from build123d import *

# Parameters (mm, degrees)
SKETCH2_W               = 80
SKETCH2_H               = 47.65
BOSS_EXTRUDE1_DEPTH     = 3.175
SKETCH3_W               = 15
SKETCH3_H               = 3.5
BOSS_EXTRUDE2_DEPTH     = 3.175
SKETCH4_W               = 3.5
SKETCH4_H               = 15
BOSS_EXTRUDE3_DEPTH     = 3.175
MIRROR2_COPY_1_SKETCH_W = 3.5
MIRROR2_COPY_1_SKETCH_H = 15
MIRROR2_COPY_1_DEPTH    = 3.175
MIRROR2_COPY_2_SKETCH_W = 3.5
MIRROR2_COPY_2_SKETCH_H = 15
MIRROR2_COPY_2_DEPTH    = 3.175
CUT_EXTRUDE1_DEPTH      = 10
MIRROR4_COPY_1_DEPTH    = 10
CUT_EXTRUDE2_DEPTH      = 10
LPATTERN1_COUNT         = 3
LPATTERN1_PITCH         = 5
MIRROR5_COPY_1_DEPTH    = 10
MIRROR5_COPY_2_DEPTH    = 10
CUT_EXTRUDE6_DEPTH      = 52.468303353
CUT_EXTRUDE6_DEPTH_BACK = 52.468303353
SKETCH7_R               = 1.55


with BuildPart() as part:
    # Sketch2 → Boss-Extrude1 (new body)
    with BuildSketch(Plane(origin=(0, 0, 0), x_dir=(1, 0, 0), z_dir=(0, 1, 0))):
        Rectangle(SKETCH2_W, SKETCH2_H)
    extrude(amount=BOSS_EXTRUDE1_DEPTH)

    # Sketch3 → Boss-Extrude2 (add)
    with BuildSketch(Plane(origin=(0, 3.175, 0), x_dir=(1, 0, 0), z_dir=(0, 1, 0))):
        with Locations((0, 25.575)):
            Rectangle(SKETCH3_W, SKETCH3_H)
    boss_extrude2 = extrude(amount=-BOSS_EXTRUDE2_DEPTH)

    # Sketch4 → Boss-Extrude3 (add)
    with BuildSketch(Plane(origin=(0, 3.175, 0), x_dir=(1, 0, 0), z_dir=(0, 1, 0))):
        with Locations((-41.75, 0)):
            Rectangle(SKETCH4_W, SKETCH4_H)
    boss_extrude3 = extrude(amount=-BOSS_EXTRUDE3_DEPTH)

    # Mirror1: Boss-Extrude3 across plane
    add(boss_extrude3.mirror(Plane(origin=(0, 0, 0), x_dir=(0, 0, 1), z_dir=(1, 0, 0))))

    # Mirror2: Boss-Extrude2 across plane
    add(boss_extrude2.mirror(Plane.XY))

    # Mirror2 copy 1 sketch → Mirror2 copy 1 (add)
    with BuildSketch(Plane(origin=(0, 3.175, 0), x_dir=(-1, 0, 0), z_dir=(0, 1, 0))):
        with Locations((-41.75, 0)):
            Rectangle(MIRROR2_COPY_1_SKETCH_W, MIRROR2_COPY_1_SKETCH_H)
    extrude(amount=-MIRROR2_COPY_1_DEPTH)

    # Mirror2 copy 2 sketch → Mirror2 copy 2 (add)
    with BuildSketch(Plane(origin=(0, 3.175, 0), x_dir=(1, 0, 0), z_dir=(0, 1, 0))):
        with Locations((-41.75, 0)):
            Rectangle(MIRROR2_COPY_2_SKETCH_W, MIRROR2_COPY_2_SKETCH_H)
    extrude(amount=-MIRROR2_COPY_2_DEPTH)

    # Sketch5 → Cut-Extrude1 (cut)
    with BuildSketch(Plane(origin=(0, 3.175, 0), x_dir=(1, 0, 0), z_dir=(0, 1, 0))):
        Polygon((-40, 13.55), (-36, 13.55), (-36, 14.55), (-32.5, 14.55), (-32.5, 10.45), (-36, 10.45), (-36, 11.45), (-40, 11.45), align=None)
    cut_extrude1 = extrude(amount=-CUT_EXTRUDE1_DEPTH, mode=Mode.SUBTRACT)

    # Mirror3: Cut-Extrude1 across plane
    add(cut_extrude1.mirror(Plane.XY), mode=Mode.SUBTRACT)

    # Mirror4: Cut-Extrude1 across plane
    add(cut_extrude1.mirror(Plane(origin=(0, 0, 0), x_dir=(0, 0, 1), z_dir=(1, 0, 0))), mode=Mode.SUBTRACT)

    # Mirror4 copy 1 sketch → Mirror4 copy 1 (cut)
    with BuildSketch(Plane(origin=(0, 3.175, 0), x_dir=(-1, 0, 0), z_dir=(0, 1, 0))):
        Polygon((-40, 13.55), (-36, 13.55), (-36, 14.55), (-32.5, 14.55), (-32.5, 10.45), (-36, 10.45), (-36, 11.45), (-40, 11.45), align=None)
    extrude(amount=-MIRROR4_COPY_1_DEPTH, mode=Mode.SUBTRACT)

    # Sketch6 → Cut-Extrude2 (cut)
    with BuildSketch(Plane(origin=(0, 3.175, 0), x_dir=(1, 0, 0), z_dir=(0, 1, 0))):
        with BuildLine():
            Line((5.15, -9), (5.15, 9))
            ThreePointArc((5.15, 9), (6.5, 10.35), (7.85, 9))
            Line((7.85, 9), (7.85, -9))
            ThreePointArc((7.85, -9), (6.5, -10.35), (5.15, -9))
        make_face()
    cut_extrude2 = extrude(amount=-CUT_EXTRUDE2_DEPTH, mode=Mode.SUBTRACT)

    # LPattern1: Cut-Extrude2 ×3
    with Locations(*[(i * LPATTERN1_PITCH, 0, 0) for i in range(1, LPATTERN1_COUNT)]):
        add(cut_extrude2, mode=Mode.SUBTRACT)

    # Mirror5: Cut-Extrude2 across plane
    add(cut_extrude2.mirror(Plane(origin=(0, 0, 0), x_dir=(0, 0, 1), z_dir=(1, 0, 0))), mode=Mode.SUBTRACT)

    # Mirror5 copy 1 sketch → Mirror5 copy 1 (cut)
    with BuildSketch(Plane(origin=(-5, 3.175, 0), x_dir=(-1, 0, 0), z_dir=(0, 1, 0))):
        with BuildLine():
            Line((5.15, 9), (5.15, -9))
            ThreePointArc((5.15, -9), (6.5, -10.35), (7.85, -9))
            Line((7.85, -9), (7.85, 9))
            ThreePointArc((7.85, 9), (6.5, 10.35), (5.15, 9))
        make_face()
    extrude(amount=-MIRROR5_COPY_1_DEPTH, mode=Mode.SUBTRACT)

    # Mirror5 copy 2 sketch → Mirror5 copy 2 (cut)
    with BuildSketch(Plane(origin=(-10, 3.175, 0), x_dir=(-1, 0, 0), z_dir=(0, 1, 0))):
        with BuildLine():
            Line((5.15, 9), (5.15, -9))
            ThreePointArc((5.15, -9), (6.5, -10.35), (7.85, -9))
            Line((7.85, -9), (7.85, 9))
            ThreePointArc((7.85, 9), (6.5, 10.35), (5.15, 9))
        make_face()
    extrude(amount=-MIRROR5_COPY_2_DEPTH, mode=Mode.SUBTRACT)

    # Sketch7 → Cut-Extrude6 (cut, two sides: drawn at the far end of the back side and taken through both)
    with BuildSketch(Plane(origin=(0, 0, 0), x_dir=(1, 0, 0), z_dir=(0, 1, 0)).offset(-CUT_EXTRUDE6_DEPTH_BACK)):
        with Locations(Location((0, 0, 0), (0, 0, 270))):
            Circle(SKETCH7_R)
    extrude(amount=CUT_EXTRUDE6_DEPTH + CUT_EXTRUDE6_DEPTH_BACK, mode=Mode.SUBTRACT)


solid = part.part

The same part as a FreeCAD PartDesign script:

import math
import FreeCAD as App
import Part
import Sketcher

V = App.Vector


def add_polygon(sketch, points):
    """Adds a closed chain of lines whose ends are joined by coincident constraints."""
    first, n = sketch.GeometryCount, len(points)
    for a, b in zip(points, points[1:] + points[:1]):
        sketch.addGeometry(Part.LineSegment(App.Vector(*a, 0), App.Vector(*b, 0)), False)
    for i in range(n):
        sketch.addConstraint(Sketcher.Constraint("Coincident", first + i, 2, first + (i + 1) % n, 1))

doc = App.newDocument("Part")
body = doc.addObject("PartDesign::Body", "Body")

# Sketch on XZ plane
sketch1 = body.newObject("Sketcher::SketchObject", "Sketch")
sketch1.AttachmentSupport = (doc.getObject("XZ_Plane"), [""])
sketch1.MapMode = "FlatFace"
add_polygon(sketch1, [(-40, -23.825), (-40, 23.825), (40, 23.825), (40, -23.825)])  # lines 0-3
sketch1.addConstraint([
    Sketcher.Constraint("Vertical", 0),
    Sketcher.Constraint("Horizontal", 1),
    Sketcher.Constraint("Vertical", 2),
    Sketcher.Constraint("Horizontal", 3),
    Sketcher.Constraint("Symmetric", 0, 2, 2, 2, -1, 1),
    Sketcher.Constraint("DistanceX", 1, 1, 1, 2, 80.0),
    Sketcher.Constraint("DistanceY", 0, 1, 0, 2, 47.65),
])
pad1 = body.newObject("PartDesign::Pad", "Pad")
pad1.Profile = sketch1
pad1.Length = 3.175
pad1.Reversed = True

# Sketch on XZ plane
sketch2 = body.newObject("Sketcher::SketchObject", "Sketch001")
sketch2.AttachmentSupport = (doc.getObject("XZ_Plane"), [""])
sketch2.MapMode = "FlatFace"
sketch2.AttachmentOffset = App.Placement(V(0, 0, -3.175), App.Rotation())
add_polygon(sketch2, [(-7.5, -27.325), (-7.5, -23.825), (7.5, -23.825), (7.5, -27.325)])  # lines 0-3
sketch2.addConstraint([
    Sketcher.Constraint("Vertical", 0),
    Sketcher.Constraint("Horizontal", 1),
    Sketcher.Constraint("Vertical", 2),
    Sketcher.Constraint("Horizontal", 3),
    Sketcher.Constraint("DistanceX", 1, 1, 1, 2, 15.0),
    Sketcher.Constraint("DistanceY", 0, 1, 0, 2, 3.5),
    Sketcher.Constraint("DistanceX", 0, 2, -1, 1, 7.5),
    Sketcher.Constraint("DistanceY", 0, 2, -1, 1, 23.825),
])
pad2 = body.newObject("PartDesign::Pad", "Pad001")
pad2.Profile = sketch2
pad2.Length = 3.175

# Sketch on XZ plane
sketch3 = body.newObject("Sketcher::SketchObject", "Sketch002")
sketch3.AttachmentSupport = (doc.getObject("XZ_Plane"), [""])
sketch3.MapMode = "FlatFace"
sketch3.AttachmentOffset = App.Placement(V(0, 0, -3.175), App.Rotation())
add_polygon(sketch3, [(-43.5, -7.5), (-43.5, 7.5), (-40, 7.5), (-40, -7.5)])  # lines 0-3
sketch3.addConstraint([
    Sketcher.Constraint("Vertical", 0),
    Sketcher.Constraint("Horizontal", 1),
    Sketcher.Constraint("Vertical", 2),
    Sketcher.Constraint("Horizontal", 3),
    Sketcher.Constraint("DistanceY", 0, 1, 0, 2, 15.0),
    Sketcher.Constraint("DistanceX", 1, 1, 1, 2, 3.5),
    Sketcher.Constraint("DistanceX", 1, 2, -1, 1, 40.0),
    Sketcher.Constraint("DistanceY", -1, 1, 0, 2, 7.5),
])
pad3 = body.newObject("PartDesign::Pad", "Pad002")
pad3.Profile = sketch3
pad3.Length = 3.175
doc.recompute()

mirrored = body.newObject("PartDesign::Mirrored", "Mirrored")
mirrored.Originals = [pad3]
mirrored.MirrorPlane = (doc.getObject("YZ_Plane"), [""])
body.Tip = mirrored
doc.recompute()

mirrored2 = body.newObject("PartDesign::Mirrored", "Mirrored001")
mirrored2.Originals = [pad2]
mirrored2.MirrorPlane = (doc.getObject("XY_Plane"), [""])
body.Tip = mirrored2

# Sketch on XZ plane
sketch4 = body.newObject("Sketcher::SketchObject", "Sketch003")
sketch4.AttachmentSupport = (doc.getObject("XZ_Plane"), [""])
sketch4.MapMode = "FlatFace"
sketch4.AttachmentOffset = App.Placement(V(0, 0, -3.175), App.Rotation())
add_polygon(sketch4, [(43.5, 7.5), (43.5, -7.5), (40, -7.5), (40, 7.5)])  # lines 0-3
sketch4.addConstraint([
    Sketcher.Constraint("Vertical", 0),
    Sketcher.Constraint("Horizontal", 1),
    Sketcher.Constraint("Vertical", 2),
    Sketcher.Constraint("Horizontal", 3),
    Sketcher.Constraint("DistanceY", 0, 2, 0, 1, 15.0),
    Sketcher.Constraint("DistanceX", 1, 2, 1, 1, 3.5),
    Sketcher.Constraint("DistanceX", -1, 1, 1, 2, 40.0),
    Sketcher.Constraint("DistanceY", 0, 2, -1, 1, 7.5),
])
pad4 = body.newObject("PartDesign::Pad", "Pad003")
pad4.Profile = sketch4
pad4.Length = 3.175

# Sketch on XZ plane
sketch5 = body.newObject("Sketcher::SketchObject", "Sketch004")
sketch5.AttachmentSupport = (doc.getObject("XZ_Plane"), [""])
sketch5.MapMode = "FlatFace"
sketch5.AttachmentOffset = App.Placement(V(0, 0, -3.175), App.Rotation())
add_polygon(sketch5, [(-43.5, -7.5), (-43.5, 7.5), (-40, 7.5), (-40, -7.5)])  # lines 0-3
sketch5.addConstraint([
    Sketcher.Constraint("Vertical", 0),
    Sketcher.Constraint("Horizontal", 1),
    Sketcher.Constraint("Vertical", 2),
    Sketcher.Constraint("Horizontal", 3),
    Sketcher.Constraint("DistanceY", 0, 1, 0, 2, 15.0),
    Sketcher.Constraint("DistanceX", 1, 1, 1, 2, 3.5),
    Sketcher.Constraint("DistanceX", 1, 2, -1, 1, 40.0),
    Sketcher.Constraint("DistanceY", -1, 1, 0, 2, 7.5),
])
pad5 = body.newObject("PartDesign::Pad", "Pad004")
pad5.Profile = sketch5
pad5.Length = 3.175

# Sketch on XZ plane
sketch6 = body.newObject("Sketcher::SketchObject", "Sketch005")
sketch6.AttachmentSupport = (doc.getObject("XZ_Plane"), [""])
sketch6.MapMode = "FlatFace"
sketch6.AttachmentOffset = App.Placement(V(0, 0, -3.175), App.Rotation())
add_polygon(sketch6, [(-36, -13.55), (-40, -13.55), (-40, -11.45), (-36, -11.45), (-36, -10.45), (-32.5, -10.45), (-32.5, -14.55), (-36, -14.55)])  # lines 0-7
sketch6.addConstraint([
    Sketcher.Constraint("Horizontal", 0),
    Sketcher.Constraint("Vertical", 1),
    Sketcher.Constraint("Horizontal", 2),
    Sketcher.Constraint("Vertical", 3),
    Sketcher.Constraint("Horizontal", 4),
    Sketcher.Constraint("Vertical", 5),
    Sketcher.Constraint("Horizontal", 6),
    Sketcher.Constraint("Vertical", 7),
    Sketcher.Constraint("Vertical", 3, 2, 6, 2),
    Sketcher.Constraint("Equal", 3, 7),
    Sketcher.Constraint("DistanceX", 0, 2, 0, 1, 4.0),
    Sketcher.Constraint("DistanceY", 3, 1, 3, 2, 1.0),
    Sketcher.Constraint("DistanceX", 4, 1, 4, 2, 3.5),
    Sketcher.Constraint("DistanceY", 1, 1, 1, 2, 2.1),
    Sketcher.Constraint("DistanceX", 0, 2, -1, 1, 40.0),
    Sketcher.Constraint("DistanceY", 0, 2, -1, 1, 13.55),
])
pocket1 = body.newObject("PartDesign::Pocket", "Pocket")
pocket1.Profile = sketch6
pocket1.Length = 10
pocket1.Reversed = True
doc.recompute()

mirrored3 = body.newObject("PartDesign::Mirrored", "Mirrored002")
mirrored3.Originals = [pocket1]
mirrored3.MirrorPlane = (doc.getObject("XY_Plane"), [""])
body.Tip = mirrored3
doc.recompute()

mirrored4 = body.newObject("PartDesign::Mirrored", "Mirrored003")
mirrored4.Originals = [pocket1]
mirrored4.MirrorPlane = (doc.getObject("YZ_Plane"), [""])
body.Tip = mirrored4

# Sketch on XZ plane
sketch7 = body.newObject("Sketcher::SketchObject", "Sketch006")
sketch7.AttachmentSupport = (doc.getObject("XZ_Plane"), [""])
sketch7.MapMode = "FlatFace"
sketch7.AttachmentOffset = App.Placement(V(0, 0, -3.175), App.Rotation())
add_polygon(sketch7, [(36, 13.55), (40, 13.55), (40, 11.45), (36, 11.45), (36, 10.45), (32.5, 10.45), (32.5, 14.55), (36, 14.55)])  # lines 0-7
sketch7.addConstraint([
    Sketcher.Constraint("Horizontal", 0),
    Sketcher.Constraint("Vertical", 1),
    Sketcher.Constraint("Horizontal", 2),
    Sketcher.Constraint("Vertical", 3),
    Sketcher.Constraint("Horizontal", 4),
    Sketcher.Constraint("Vertical", 5),
    Sketcher.Constraint("Horizontal", 6),
    Sketcher.Constraint("Vertical", 7),
    Sketcher.Constraint("Vertical", 3, 2, 6, 2),
    Sketcher.Constraint("Equal", 3, 7),
    Sketcher.Constraint("DistanceX", 0, 1, 0, 2, 4.0),
    Sketcher.Constraint("DistanceY", 3, 2, 3, 1, 1.0),
    Sketcher.Constraint("DistanceX", 4, 2, 4, 1, 3.5),
    Sketcher.Constraint("DistanceY", 1, 2, 1, 1, 2.1),
    Sketcher.Constraint("DistanceX", -1, 1, 0, 2, 40.0),
    Sketcher.Constraint("DistanceY", -1, 1, 0, 2, 13.55),
])
pocket2 = body.newObject("PartDesign::Pocket", "Pocket001")
pocket2.Profile = sketch7
pocket2.Length = 10
pocket2.Reversed = True

# Sketch on XZ plane
sketch8 = body.newObject("Sketcher::SketchObject", "Sketch007")
sketch8.AttachmentSupport = (doc.getObject("XZ_Plane"), [""])
sketch8.MapMode = "FlatFace"
sketch8.AttachmentOffset = App.Placement(V(0, 0, -3.175), App.Rotation())
sketch8.addGeometry([
    Part.LineSegment(V(5.15, -9, 0), V(5.15, 9, 0)),
    Part.ArcOfCircle(Part.Circle(V(6.5, 9, 0), V(0, 0, 1), 1.35), math.radians(0), math.radians(180)),
    Part.LineSegment(V(7.85, 9, 0), V(7.85, -9, 0)),
    Part.ArcOfCircle(Part.Circle(V(6.5, -9, 0), V(0, 0, 1), 1.35), math.radians(180), math.radians(360)),
], False)
sketch8.addConstraint([
    Sketcher.Constraint("Tangent", 0, 2, 1, 2),
    Sketcher.Constraint("Tangent", 1, 1, 2, 1),
    Sketcher.Constraint("Tangent", 2, 2, 3, 2),
    Sketcher.Constraint("Tangent", 3, 1, 0, 1),
    Sketcher.Constraint("Vertical", 0),
    Sketcher.Constraint("Vertical", 2),
    Sketcher.Constraint("DistanceY", 0, 1, 0, 2, 18.0),
    Sketcher.Constraint("Radius", 1, 1.35),
    Sketcher.Constraint("DistanceY", -1, 1, 1, 3, 9.0),
    Sketcher.Constraint("DistanceX", -1, 1, 1, 3, 6.5),
])
pocket3 = body.newObject("PartDesign::Pocket", "Pocket002")
pocket3.Profile = sketch8
pocket3.Length = 10
pocket3.Reversed = True
doc.recompute()

linearpattern = body.newObject("PartDesign::LinearPattern", "LinearPattern")
linearpattern.Originals = [pocket3]
linearpattern.Direction = (doc.getObject("X_Axis"), [""])
linearpattern.Mode = "offset"
linearpattern.Offset = 5
linearpattern.Occurrences = 3
body.Tip = linearpattern
doc.recompute()

mirrored5 = body.newObject("PartDesign::Mirrored", "Mirrored004")
mirrored5.Originals = [pocket3]
mirrored5.MirrorPlane = (doc.getObject("YZ_Plane"), [""])
body.Tip = mirrored5

# Sketch on XZ plane
sketch9 = body.newObject("Sketcher::SketchObject", "Sketch008")
sketch9.AttachmentSupport = (doc.getObject("XZ_Plane"), [""])
sketch9.MapMode = "FlatFace"
sketch9.AttachmentOffset = App.Placement(V(0, 0, -3.175), App.Rotation())
sketch9.addGeometry([
    Part.LineSegment(V(-10.15, 9, 0), V(-10.15, -9, 0)),
    Part.ArcOfCircle(Part.Circle(V(-11.5, -9, 0), V(0, 0, 1), 1.35), math.radians(180), math.radians(360)),
    Part.LineSegment(V(-12.85, -9, 0), V(-12.85, 9, 0)),
    Part.ArcOfCircle(Part.Circle(V(-11.5, 9, 0), V(0, 0, 1), 1.35), math.radians(0), math.radians(180)),
], False)
sketch9.addConstraint([
    Sketcher.Constraint("Tangent", 0, 2, 1, 2),
    Sketcher.Constraint("Tangent", 1, 1, 2, 1),
    Sketcher.Constraint("Tangent", 2, 2, 3, 2),
    Sketcher.Constraint("Tangent", 3, 1, 0, 1),
    Sketcher.Constraint("Vertical", 0),
    Sketcher.Constraint("Vertical", 2),
    Sketcher.Constraint("DistanceY", 0, 2, 0, 1, 18.0),
    Sketcher.Constraint("Radius", 1, 1.35),
    Sketcher.Constraint("DistanceY", 1, 3, -1, 1, 9.0),
    Sketcher.Constraint("DistanceX", 1, 3, -1, 1, 11.5),
])
pocket4 = body.newObject("PartDesign::Pocket", "Pocket003")
pocket4.Profile = sketch9
pocket4.Length = 10
pocket4.Reversed = True

# Sketch on XZ plane
sketch10 = body.newObject("Sketcher::SketchObject", "Sketch009")
sketch10.AttachmentSupport = (doc.getObject("XZ_Plane"), [""])
sketch10.MapMode = "FlatFace"
sketch10.AttachmentOffset = App.Placement(V(0, 0, -3.175), App.Rotation())
sketch10.addGeometry([
    Part.LineSegment(V(-15.15, 9, 0), V(-15.15, -9, 0)),
    Part.ArcOfCircle(Part.Circle(V(-16.5, -9, 0), V(0, 0, 1), 1.35), math.radians(180), math.radians(360)),
    Part.LineSegment(V(-17.85, -9, 0), V(-17.85, 9, 0)),
    Part.ArcOfCircle(Part.Circle(V(-16.5, 9, 0), V(0, 0, 1), 1.35), math.radians(0), math.radians(180)),
], False)
sketch10.addConstraint([
    Sketcher.Constraint("Tangent", 0, 2, 1, 2),
    Sketcher.Constraint("Tangent", 1, 1, 2, 1),
    Sketcher.Constraint("Tangent", 2, 2, 3, 2),
    Sketcher.Constraint("Tangent", 3, 1, 0, 1),
    Sketcher.Constraint("Vertical", 0),
    Sketcher.Constraint("Vertical", 2),
    Sketcher.Constraint("DistanceY", 0, 2, 0, 1, 18.0),
    Sketcher.Constraint("Radius", 1, 1.35),
    Sketcher.Constraint("DistanceY", 1, 3, -1, 1, 9.0),
    Sketcher.Constraint("DistanceX", 1, 3, -1, 1, 16.5),
])
pocket5 = body.newObject("PartDesign::Pocket", "Pocket004")
pocket5.Profile = sketch10
pocket5.Length = 10
pocket5.Reversed = True

# Sketch on XZ plane
sketch11 = body.newObject("Sketcher::SketchObject", "Sketch010")
sketch11.AttachmentSupport = (doc.getObject("XZ_Plane"), [""])
sketch11.MapMode = "FlatFace"
sketch11.addGeometry(Part.Circle(V(0, 0, 0), V(0, 0, 1), 1.55), False)
sketch11.addConstraint([
    Sketcher.Constraint("Coincident", 0, 3, -1, 1),
    Sketcher.Constraint("Diameter", 0, 3.1),
])
pocket6 = body.newObject("PartDesign::Pocket", "Pocket005")
pocket6.Profile = sketch11
pocket6.Type = "ThroughAll"
pocket6.Midplane = True

doc.recompute()
